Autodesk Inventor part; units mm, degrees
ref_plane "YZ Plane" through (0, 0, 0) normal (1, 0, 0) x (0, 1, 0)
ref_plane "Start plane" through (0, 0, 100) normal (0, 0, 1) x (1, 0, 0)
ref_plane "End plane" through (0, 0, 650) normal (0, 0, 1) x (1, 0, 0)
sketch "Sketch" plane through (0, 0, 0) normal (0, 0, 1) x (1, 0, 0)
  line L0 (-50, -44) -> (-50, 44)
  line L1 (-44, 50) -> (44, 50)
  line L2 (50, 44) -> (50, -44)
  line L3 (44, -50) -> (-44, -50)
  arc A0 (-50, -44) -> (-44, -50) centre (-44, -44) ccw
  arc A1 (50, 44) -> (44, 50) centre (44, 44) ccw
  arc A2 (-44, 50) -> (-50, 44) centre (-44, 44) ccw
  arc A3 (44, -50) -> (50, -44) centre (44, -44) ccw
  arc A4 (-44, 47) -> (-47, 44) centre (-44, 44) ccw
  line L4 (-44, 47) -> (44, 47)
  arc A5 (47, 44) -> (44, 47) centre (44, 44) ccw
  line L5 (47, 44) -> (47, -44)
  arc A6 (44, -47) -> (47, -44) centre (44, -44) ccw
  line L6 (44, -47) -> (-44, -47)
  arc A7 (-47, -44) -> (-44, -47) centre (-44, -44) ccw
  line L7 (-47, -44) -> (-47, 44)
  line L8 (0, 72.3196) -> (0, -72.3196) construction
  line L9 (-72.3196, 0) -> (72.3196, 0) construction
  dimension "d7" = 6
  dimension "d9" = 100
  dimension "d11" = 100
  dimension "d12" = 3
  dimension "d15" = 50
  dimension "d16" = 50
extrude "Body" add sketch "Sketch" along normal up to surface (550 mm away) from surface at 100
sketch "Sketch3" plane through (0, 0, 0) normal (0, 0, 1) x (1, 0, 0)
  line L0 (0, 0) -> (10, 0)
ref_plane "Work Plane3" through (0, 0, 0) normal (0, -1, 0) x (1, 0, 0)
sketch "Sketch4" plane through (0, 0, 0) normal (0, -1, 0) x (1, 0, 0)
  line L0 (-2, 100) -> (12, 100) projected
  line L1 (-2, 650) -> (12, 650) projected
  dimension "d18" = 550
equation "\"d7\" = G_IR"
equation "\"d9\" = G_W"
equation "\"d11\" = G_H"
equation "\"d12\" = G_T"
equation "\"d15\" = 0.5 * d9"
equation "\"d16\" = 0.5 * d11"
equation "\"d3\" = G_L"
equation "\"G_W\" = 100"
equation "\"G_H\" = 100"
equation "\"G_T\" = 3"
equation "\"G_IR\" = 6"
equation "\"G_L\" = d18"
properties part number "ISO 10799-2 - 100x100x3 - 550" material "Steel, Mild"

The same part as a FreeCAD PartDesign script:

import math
import FreeCAD as App
import Part
import Sketcher
Q = App.Units.Quantity

doc = App.newDocument("Part")
body = doc.addObject("PartDesign::Body", "Body")

# Sketch on XY plane
sketch1 = body.newObject("Sketcher::SketchObject", "Sketch")
sketch1.AttachmentSupport = (doc.getObject("XY_Plane"), [""])
sketch1.MapMode = "FlatFace"
sketch1.AttachmentOffset = App.Placement(App.Vector(0, 0, 100), App.Rotation())
sketch1.addGeometry(Part.LineSegment(App.Vector(-50, 44, 0), App.Vector(-50, -44, 0)), False)
sketch1.addGeometry(Part.ArcOfCircle(Part.Circle(App.Vector(-44, -44, 0), App.Vector(0, 0, 1), 6), math.radians(180), math.radians(270)), False)
sketch1.addGeometry(Part.LineSegment(App.Vector(-44, -50, 0), App.Vector(44, -50, 0)), False)
sketch1.addGeometry(Part.ArcOfCircle(Part.Circle(App.Vector(44, -44, 0), App.Vector(0, 0, 1), 6), math.radians(-90), math.radians(0)), False)
sketch1.addGeometry(Part.LineSegment(App.Vector(50, -44, 0), App.Vector(50, 44, 0)), False)
sketch1.addGeometry(Part.ArcOfCircle(Part.Circle(App.Vector(44, 44, 0), App.Vector(0, 0, 1), 6), math.radians(0), math.radians(90)), False)
sketch1.addGeometry(Part.LineSegment(App.Vector(44, 50, 0), App.Vector(-44, 50, 0)), False)
sketch1.addGeometry(Part.ArcOfCircle(Part.Circle(App.Vector(-44, 44, 0), App.Vector(0, 0, 1), 6), math.radians(90), math.radians(180)), False)
sketch1.addGeometry(Part.ArcOfCircle(Part.Circle(App.Vector(-44, 44, 0), App.Vector(0, 0, 1), 3), math.radians(90), math.radians(180)), False)
sketch1.addGeometry(Part.LineSegment(App.Vector(-44, 47, 0), App.Vector(44, 47, 0)), False)
sketch1.addGeometry(Part.ArcOfCircle(Part.Circle(App.Vector(44, 44, 0), App.Vector(0, 0, 1), 3), math.radians(0), math.radians(90)), False)
sketch1.addGeometry(Part.LineSegment(App.Vector(47, 44, 0), App.Vector(47, -44, 0)), False)
sketch1.addGeometry(Part.ArcOfCircle(Part.Circle(App.Vector(44, -44, 0), App.Vector(0, 0, 1), 3), math.radians(-90), math.radians(0)), False)
sketch1.addGeometry(Part.LineSegment(App.Vector(44, -47, 0), App.Vector(-44, -47, 0)), False)
sketch1.addGeometry(Part.ArcOfCircle(Part.Circle(App.Vector(-44, -44, 0), App.Vector(0, 0, 1), 3), math.radians(180), math.radians(270)), False)
sketch1.addGeometry(Part.LineSegment(App.Vector(-47, -44, 0), App.Vector(-47, 44, 0)), False)
sketch1.addConstraint(Sketcher.Constraint("Tangent", 0, 2, 1, 1))
sketch1.addConstraint(Sketcher.Constraint("Tangent", 1, 2, 2, 1))
sketch1.addConstraint(Sketcher.Constraint("Tangent", 2, 2, 3, 1))
sketch1.addConstraint(Sketcher.Constraint("Tangent", 3, 2, 4, 1))
sketch1.addConstraint(Sketcher.Constraint("Tangent", 4, 2, 5, 1))
sketch1.addConstraint(Sketcher.Constraint("Tangent", 5, 2, 6, 1))
sketch1.addConstraint(Sketcher.Constraint("Tangent", 6, 2, 7, 1))
sketch1.addConstraint(Sketcher.Constraint("Tangent", 7, 2, 0, 1))
sketch1.addConstraint(Sketcher.Constraint("Tangent", 8, 1, 9, 1))
sketch1.addConstraint(Sketcher.Constraint("Tangent", 9, 2, 10, 2))
sketch1.addConstraint(Sketcher.Constraint("Tangent", 10, 1, 11, 1))
sketch1.addConstraint(Sketcher.Constraint("Tangent", 11, 2, 12, 2))
sketch1.addConstraint(Sketcher.Constraint("Tangent", 12, 1, 13, 1))
sketch1.addConstraint(Sketcher.Constraint("Tangent", 13, 2, 14, 2))
sketch1.addConstraint(Sketcher.Constraint("Tangent", 14, 1, 15, 1))
sketch1.addConstraint(Sketcher.Constraint("Tangent", 15, 2, 8, 2))
sketch1.addConstraint(Sketcher.Constraint("Vertical", 0))
sketch1.addConstraint(Sketcher.Constraint("Horizontal", 2))
sketch1.addConstraint(Sketcher.Constraint("Vertical", 4))
sketch1.addConstraint(Sketcher.Constraint("Horizontal", 6))
sketch1.addConstraint(Sketcher.Constraint("Horizontal", 9))
sketch1.addConstraint(Sketcher.Constraint("Vertical", 11))
sketch1.addConstraint(Sketcher.Constraint("Horizontal", 13))
sketch1.addConstraint(Sketcher.Constraint("Vertical", 15))
sketch1.addConstraint(Sketcher.Constraint("Coincident", 8, 3, 7, 3))
sketch1.addConstraint(Sketcher.Constraint("Coincident", 10, 3, 5, 3))
sketch1.addConstraint(Sketcher.Constraint("Coincident", 12, 3, 3, 3))
sketch1.addConstraint(Sketcher.Constraint("Equal", 1, 3))
sketch1.addConstraint(Sketcher.Constraint("Equal", 3, 5))
sketch1.addConstraint(Sketcher.Constraint("Equal", 5, 7))
sketch1.addConstraint(Sketcher.Constraint("Equal", 12, 14))
sketch1.addConstraint(Sketcher.Constraint("Symmetric", 1, 3, 5, 3, -1, 1))
sketch1.addConstraint(Sketcher.Constraint("Equal", 13, 0))
sketch1.addConstraint(Sketcher.Constraint("Radius", 1, Q("6 mm")))
sketch1.addConstraint(Sketcher.Constraint("Radius", 8, Q("3 mm")))
sketch1.addConstraint(Sketcher.Constraint("DistanceX", 0, 2, -1, 1, Q("50 mm")))
pad1 = body.newObject("PartDesign::Pad", "Pad")
pad1.Profile = sketch1
pad1.Length = 550

doc.recompute()
